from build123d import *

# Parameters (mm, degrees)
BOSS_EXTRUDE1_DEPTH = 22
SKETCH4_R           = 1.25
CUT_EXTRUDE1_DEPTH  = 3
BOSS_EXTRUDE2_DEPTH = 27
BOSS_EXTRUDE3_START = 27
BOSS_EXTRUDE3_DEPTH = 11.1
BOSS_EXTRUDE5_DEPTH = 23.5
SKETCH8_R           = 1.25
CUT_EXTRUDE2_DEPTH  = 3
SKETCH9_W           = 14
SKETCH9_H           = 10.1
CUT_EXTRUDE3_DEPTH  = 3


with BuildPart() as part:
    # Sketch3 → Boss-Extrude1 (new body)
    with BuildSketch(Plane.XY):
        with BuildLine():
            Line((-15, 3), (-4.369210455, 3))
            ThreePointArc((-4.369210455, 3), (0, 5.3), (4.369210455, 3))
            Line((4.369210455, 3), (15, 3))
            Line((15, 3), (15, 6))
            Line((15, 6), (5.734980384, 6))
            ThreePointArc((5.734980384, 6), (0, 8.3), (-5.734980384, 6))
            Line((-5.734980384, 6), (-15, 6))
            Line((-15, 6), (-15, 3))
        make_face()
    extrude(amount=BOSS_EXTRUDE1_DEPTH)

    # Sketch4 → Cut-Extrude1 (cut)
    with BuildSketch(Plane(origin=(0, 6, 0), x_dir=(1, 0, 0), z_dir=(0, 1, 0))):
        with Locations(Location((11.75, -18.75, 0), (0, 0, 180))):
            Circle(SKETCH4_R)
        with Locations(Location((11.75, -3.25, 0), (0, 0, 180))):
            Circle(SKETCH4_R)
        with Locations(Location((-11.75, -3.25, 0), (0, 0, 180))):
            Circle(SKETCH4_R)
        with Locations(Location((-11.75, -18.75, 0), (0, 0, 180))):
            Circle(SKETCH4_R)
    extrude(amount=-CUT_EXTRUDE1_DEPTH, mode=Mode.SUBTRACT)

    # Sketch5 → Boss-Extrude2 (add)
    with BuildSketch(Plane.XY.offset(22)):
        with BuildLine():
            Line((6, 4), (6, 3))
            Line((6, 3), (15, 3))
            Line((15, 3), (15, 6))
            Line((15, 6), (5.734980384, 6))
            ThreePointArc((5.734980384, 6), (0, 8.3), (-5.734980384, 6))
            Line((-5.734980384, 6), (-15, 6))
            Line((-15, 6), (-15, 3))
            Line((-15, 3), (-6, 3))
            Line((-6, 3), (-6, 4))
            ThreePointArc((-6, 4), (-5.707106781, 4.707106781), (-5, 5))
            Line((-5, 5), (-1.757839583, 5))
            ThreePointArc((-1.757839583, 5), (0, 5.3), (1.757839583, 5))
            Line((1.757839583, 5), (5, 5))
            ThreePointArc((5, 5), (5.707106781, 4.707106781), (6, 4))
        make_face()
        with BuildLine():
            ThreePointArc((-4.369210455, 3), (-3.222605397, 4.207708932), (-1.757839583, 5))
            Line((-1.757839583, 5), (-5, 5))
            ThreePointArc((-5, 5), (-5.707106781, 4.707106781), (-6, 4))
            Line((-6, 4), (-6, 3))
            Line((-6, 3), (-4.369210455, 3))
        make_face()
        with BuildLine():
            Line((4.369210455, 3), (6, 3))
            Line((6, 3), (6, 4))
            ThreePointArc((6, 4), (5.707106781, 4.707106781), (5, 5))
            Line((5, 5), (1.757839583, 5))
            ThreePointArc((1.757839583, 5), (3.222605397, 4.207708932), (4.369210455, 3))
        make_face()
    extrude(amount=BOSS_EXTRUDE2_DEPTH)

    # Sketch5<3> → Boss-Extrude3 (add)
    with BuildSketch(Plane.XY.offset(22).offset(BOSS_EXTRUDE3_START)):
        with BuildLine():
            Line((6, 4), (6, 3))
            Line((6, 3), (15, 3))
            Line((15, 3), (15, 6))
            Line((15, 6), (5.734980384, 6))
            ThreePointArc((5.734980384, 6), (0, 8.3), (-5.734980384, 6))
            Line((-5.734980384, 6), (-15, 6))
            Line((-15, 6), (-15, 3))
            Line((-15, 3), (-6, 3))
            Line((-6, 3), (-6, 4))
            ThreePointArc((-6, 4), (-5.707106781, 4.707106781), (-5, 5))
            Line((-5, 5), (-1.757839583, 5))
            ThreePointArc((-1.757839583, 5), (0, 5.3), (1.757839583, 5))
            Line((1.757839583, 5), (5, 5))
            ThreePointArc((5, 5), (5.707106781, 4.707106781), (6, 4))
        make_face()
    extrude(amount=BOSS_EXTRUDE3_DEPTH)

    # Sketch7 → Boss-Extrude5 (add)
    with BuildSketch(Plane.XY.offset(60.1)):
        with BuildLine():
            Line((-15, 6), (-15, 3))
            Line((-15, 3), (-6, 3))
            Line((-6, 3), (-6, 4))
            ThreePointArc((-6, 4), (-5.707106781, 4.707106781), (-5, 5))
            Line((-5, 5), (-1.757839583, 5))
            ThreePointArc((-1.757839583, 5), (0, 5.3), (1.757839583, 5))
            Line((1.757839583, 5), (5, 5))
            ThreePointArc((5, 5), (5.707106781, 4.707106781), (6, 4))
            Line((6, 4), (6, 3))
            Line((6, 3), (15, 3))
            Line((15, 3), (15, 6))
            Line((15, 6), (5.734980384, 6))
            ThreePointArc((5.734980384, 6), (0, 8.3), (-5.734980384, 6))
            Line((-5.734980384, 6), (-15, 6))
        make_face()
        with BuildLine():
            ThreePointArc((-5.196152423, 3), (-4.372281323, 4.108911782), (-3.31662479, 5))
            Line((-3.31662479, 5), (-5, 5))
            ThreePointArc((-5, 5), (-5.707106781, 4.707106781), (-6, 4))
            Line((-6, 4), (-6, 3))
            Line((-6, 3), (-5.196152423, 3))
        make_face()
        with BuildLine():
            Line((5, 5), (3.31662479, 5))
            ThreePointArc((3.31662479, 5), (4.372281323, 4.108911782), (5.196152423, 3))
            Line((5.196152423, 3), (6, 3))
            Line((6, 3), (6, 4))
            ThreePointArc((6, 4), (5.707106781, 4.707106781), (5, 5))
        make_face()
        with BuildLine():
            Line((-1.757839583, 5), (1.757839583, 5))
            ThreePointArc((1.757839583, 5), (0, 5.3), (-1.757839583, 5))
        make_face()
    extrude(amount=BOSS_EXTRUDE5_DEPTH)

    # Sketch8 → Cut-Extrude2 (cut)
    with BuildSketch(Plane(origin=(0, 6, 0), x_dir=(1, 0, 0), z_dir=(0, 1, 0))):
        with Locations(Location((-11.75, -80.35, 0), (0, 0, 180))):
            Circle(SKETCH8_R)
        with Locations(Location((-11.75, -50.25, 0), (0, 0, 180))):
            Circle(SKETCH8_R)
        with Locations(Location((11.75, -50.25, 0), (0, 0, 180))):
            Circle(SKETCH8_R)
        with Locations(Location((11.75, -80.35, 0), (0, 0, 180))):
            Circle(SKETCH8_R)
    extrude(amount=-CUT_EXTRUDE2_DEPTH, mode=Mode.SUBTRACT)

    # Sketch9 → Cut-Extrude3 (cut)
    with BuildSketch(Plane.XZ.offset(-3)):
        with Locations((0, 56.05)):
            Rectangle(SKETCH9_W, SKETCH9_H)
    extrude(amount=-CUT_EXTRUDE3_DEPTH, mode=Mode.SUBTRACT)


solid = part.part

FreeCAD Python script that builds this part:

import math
import FreeCAD as App
import Part
import Sketcher

V = App.Vector

doc = App.newDocument("Part")
body = doc.addObject("PartDesign::Body", "Body")

sketch1 = body.newObject("Sketcher::SketchObject", "Sketch")
sketch1.AttachmentSupport = (doc.getObject("XY_Plane"), [""])
sketch1.MapMode = "FlatFace"
sketch1.addGeometry([
    Part.LineSegment(V(-15, 3, 0), V(-4.4, 3, 0)),
    Part.ArcOfCircle(Part.Circle(V(0, 0, 0), V(0, 0, 1), 5.3), math.radians(34), math.radians(146)),
    Part.LineSegment(V(4.4, 3, 0), V(15, 3, 0)),
    Part.LineSegment(V(15, 3, 0), V(15, 6, 0)),
    Part.LineSegment(V(15, 6, 0), V(5.7, 6, 0)),
    Part.ArcOfCircle(Part.Circle(V(0, 0, 0), V(0, 0, 1), 8.3), math.radians(46), math.radians(134)),
    Part.LineSegment(V(-5.7, 6, 0), V(-15, 6, 0)),
    Part.LineSegment(V(-15, 6, 0), V(-15, 3, 0)),
], False)
sketch1.addConstraint([
    Sketcher.Constraint("Coincident", 0, 2, 1, 2),
    Sketcher.Constraint("Coincident", 1, 1, 2, 1),
    Sketcher.Constraint("Coincident", 2, 2, 3, 1),
    Sketcher.Constraint("Coincident", 3, 2, 4, 1),
    Sketcher.Constraint("Coincident", 4, 2, 5, 1),
    Sketcher.Constraint("Coincident", 5, 2, 6, 1),
    Sketcher.Constraint("Coincident", 6, 2, 7, 1),
    Sketcher.Constraint("Coincident", 7, 2, 0, 1),
    Sketcher.Constraint("Horizontal", 0),
    Sketcher.Constraint("Horizontal", 2),
    Sketcher.Constraint("Vertical", 3),
    Sketcher.Constraint("Horizontal", 4),
    Sketcher.Constraint("Horizontal", 6),
    Sketcher.Constraint("Vertical", 7),
    Sketcher.Constraint("Coincident", 1, 3, -1, 1),
    Sketcher.Constraint("Coincident", 5, 3, -1, 1),
    Sketcher.Constraint("Symmetric", 3, 2, 6, 2, -2),
    Sketcher.Constraint("Horizontal", 0, 2, 1, 1),
    Sketcher.Constraint("Radius", 1, 5.3),
    Sketcher.Constraint("Radius", 5, 8.3),
    Sketcher.Constraint("DistanceY", 3, 1, 3, 2, 3.0),
    Sketcher.Constraint("DistanceY", -1, 1, 0, 2, 3.0),
    Sketcher.Constraint("DistanceX", -1, 1, 2, 2, 15.0),
])
pad1 = body.newObject("PartDesign::Pad", "Pad")
pad1.Profile = sketch1
pad1.Length = 22

sketch2 = body.newObject("Sketcher::SketchObject", "Sketch001")
sketch2.AttachmentSupport = (doc.getObject("XZ_Plane"), [""])
sketch2.MapMode = "FlatFace"
sketch2.AttachmentOffset = App.Placement(V(0, 0, -6), App.Rotation())
sketch2.addGeometry([
    Part.Circle(V(11.8, 18.8, 0), V(0, 0, 1), 1.2),
    Part.Circle(V(11.8, 3.2, 0), V(0, 0, 1), 1.2),
    Part.Circle(V(-11.8, 3.2, 0), V(0, 0, 1), 1.2),
    Part.Circle(V(-11.8, 18.8, 0), V(0, 0, 1), 1.2),
], False)
sketch2.addConstraint([
    Sketcher.Constraint("Equal", 0, 1),
    Sketcher.Constraint("Equal", 1, 2),
    Sketcher.Constraint("Equal", 2, 3),
    Sketcher.Constraint("Symmetric", 1, 3, 2, 3, -2),
    Sketcher.Constraint("Symmetric", 0, 3, 3, 3, -2),
    Sketcher.Constraint("Vertical", 0, 3, 1, 3),
    Sketcher.Constraint("Diameter", 0, 2.5),
    Sketcher.Constraint("DistanceY", 1, 3, 0, 3, 15.5),
    Sketcher.Constraint("DistanceX", 2, 3, 1, 3, 23.5),
    Sketcher.Constraint("DistanceY", -1, 1, 0, 3, 18.75),
])
pocket1 = body.newObject("PartDesign::Pocket", "Pocket")
pocket1.Profile = sketch2
pocket1.Length = 3
pocket1.Reversed = True

sketch3 = body.newObject("Sketcher::SketchObject", "Sketch002")
sketch3.AttachmentSupport = (doc.getObject("XY_Plane"), [""])
sketch3.MapMode = "FlatFace"
sketch3.AttachmentOffset = App.Placement(V(0, 0, 22), App.Rotation())
sketch3.addGeometry([
    Part.LineSegment(V(15, 3, 0), V(15, 6, 0)),
    Part.LineSegment(V(15, 6, 0), V(5.7, 6, 0)),
    Part.ArcOfCircle(Part.Circle(V(0, 0, 0), V(0, 0, 1), 8.3), math.radians(46), math.radians(134)),
    Part.LineSegment(V(-5.7, 6, 0), V(-15, 6, 0)),
    Part.LineSegment(V(-15, 6, 0), V(-15, 3, 0)),
    Part.LineSegment(V(-15, 3, 0), V(-4.4, 3, 0)),
    Part.ArcOfCircle(Part.Circle(V(0, 0, 0), V(0, 0, 1), 5.3), math.radians(109), math.radians(146)),
    Part.ArcOfCircle(Part.Circle(V(0, 0, 0), V(0, 0, 1), 5.3), math.radians(71), math.radians(109)),
    Part.ArcOfCircle(Part.Circle(V(0, 0, 0), V(0, 0, 1), 5.3), math.radians(34), math.radians(71)),
    Part.LineSegment(V(4.4, 3, 0), V(15, 3, 0)),
], False)
sketch3.addConstraint([
    Sketcher.Constraint("Coincident", 0, 2, 1, 1),
    Sketcher.Constraint("Coincident", 1, 2, 2, 1),
    Sketcher.Constraint("Coincident", 2, 2, 3, 1),
    Sketcher.Constraint("Coincident", 3, 2, 4, 1),
    Sketcher.Constraint("Coincident", 4, 2, 5, 1),
    Sketcher.Constraint("Coincident", 5, 2, 6, 2),
    Sketcher.Constraint("Tangent", 6, 1, 7, 2),
    Sketcher.Constraint("Tangent", 7, 1, 8, 2),
    Sketcher.Constraint("Coincident", 8, 1, 9, 1),
    Sketcher.Constraint("Coincident", 9, 2, 0, 1),
    Sketcher.Constraint("Vertical", 0),
    Sketcher.Constraint("Horizontal", 1),
    Sketcher.Constraint("Horizontal", 3),
    Sketcher.Constraint("Vertical", 4),
    Sketcher.Constraint("Horizontal", 5),
    Sketcher.Constraint("Horizontal", 9),
    Sketcher.Constraint("Coincident", 2, 3, -1, 1),
    Sketcher.Constraint("Coincident", 6, 3, -1, 1),
    Sketcher.Constraint("Coincident", 8, 3, -1, 1),
    Sketcher.Constraint("Symmetric", 0, 2, 3, 2, -2),
    Sketcher.Constraint("Horizontal", 6, 1, 7, 1),
    Sketcher.Constraint("Horizontal", 5, 2, 8, 1),
    Sketcher.Constraint("Radius", 2, 8.3),
    Sketcher.Constraint("Radius", 6, 5.3),
    Sketcher.Constraint("DistanceY", 0, 1, 0, 2, 3.0),
    Sketcher.Constraint("DistanceX", -1, 1, 0, 2, 15.0),
    Sketcher.Constraint("DistanceY", -1, 1, 0, 2, 6.0),
    Sketcher.Constraint("DistanceY", -1, 1, 6, 1, 5.0),
])
pad2 = body.newObject("PartDesign::Pad", "Pad001")
pad2.Profile = sketch3
pad2.Length = 27

sketch4 = body.newObject("Sketcher::SketchObject", "Sketch003")
sketch4.AttachmentSupport = (doc.getObject("XY_Plane"), [""])
sketch4.MapMode = "FlatFace"
sketch4.AttachmentOffset = App.Placement(V(0, 0, 49), App.Rotation())
sketch4.addGeometry([
    Part.LineSegment(V(6, 4, 0), V(6, 3, 0)),
    Part.LineSegment(V(6, 3, 0), V(15, 3, 0)),
    Part.LineSegment(V(15, 3, 0), V(15, 6, 0)),
    Part.LineSegment(V(15, 6, 0), V(5.7, 6, 0)),
    Part.ArcOfCircle(Part.Circle(V(0, 0, 0), V(0, 0, 1), 8.3), math.radians(46), math.radians(134)),
    Part.LineSegment(V(-5.7, 6, 0), V(-15, 6, 0)),
    Part.LineSegment(V(-15, 6, 0), V(-15, 3, 0)),
    Part.LineSegment(V(-15, 3, 0), V(-6, 3, 0)),
    Part.LineSegment(V(-6, 3, 0), V(-6, 4, 0)),
    Part.ArcOfCircle(Part.Circle(V(-5, 4, 0), V(0, 0, 1), 1), math.radians(90), math.radians(180)),
    Part.LineSegment(V(-5, 5, 0), V(-1.8, 5, 0)),
    Part.ArcOfCircle(Part.Circle(V(0, 0, 0), V(0, 0, 1), 5.3), math.radians(71), math.radians(109)),
    Part.LineSegment(V(1.8, 5, 0), V(5, 5, 0)),
    Part.ArcOfCircle(Part.Circle(V(5, 4, 0), V(0, 0, 1), 1), math.radians(0), math.radians(90)),
], False)
sketch4.addConstraint([
    Sketcher.Constraint("Coincident", 0, 2, 1, 1),
    Sketcher.Constraint("Coincident", 1, 2, 2, 1),
    Sketcher.Constraint("Coincident", 2, 2, 3, 1),
    Sketcher.Constraint("Coincident", 3, 2, 4, 1),
    Sketcher.Constraint("Coincident", 4, 2, 5, 1),
    Sketcher.Constraint("Coincident", 5, 2, 6, 1),
    Sketcher.Constraint("Coincident", 6, 2, 7, 1),
    Sketcher.Constraint("Coincident", 7, 2, 8, 1),
    Sketcher.Constraint("Tangent", 8, 2, 9, 2),
    Sketcher.Constraint("Tangent", 9, 1, 10, 1),
    Sketcher.Constraint("Coincident", 10, 2, 11, 2),
    Sketcher.Constraint("Coincident", 11, 1, 12, 1),
    Sketcher.Constraint("Tangent", 12, 2, 13, 2),
    Sketcher.Constraint("Tangent", 13, 1, 0, 1),
    Sketcher.Constraint("Vertical", 0),
    Sketcher.Constraint("Horizontal", 1),
    Sketcher.Constraint("Vertical", 2),
    Sketcher.Constraint("Horizontal", 3),
    Sketcher.Constraint("Horizontal", 5),
    Sketcher.Constraint("Vertical", 6),
    Sketcher.Constraint("Horizontal", 7),
    Sketcher.Constraint("Vertical", 8),
    Sketcher.Constraint("Horizontal", 10),
    Sketcher.Constraint("Horizontal", 12),
    Sketcher.Constraint("Coincident", 4, 3, -1, 1),
    Sketcher.Constraint("Coincident", 11, 3, -1, 1),
    Sketcher.Constraint("Equal", 9, 13),
    Sketcher.Constraint("Symmetric", 9, 3, 13, 3, -2),
    Sketcher.Constraint("Symmetric", 2, 2, 5, 2, -2),
    Sketcher.Constraint("Horizontal", 1, 2, 6, 2),
    Sketcher.Constraint("Radius", 9, 1.0),
    Sketcher.Constraint("Radius", 4, 8.3),
    Sketcher.Constraint("Radius", 11, 5.3),
    Sketcher.Constraint("DistanceX", 1, 1, 1, 2, 9.0),
    Sketcher.Constraint("DistanceY", 0, 2, 0, 1, 1.0),
    Sketcher.Constraint("DistanceY", 2, 1, 2, 2, 3.0),
    Sketcher.Constraint("DistanceX", 9, 3, -1, 1, 5.0),
    Sketcher.Constraint("DistanceY", -1, 1, 9, 3, 4.0),
])
pad3 = body.newObject("PartDesign::Pad", "Pad002")
pad3.Profile = sketch4
pad3.Length = 11.1

sketch5 = body.newObject("Sketcher::SketchObject", "Sketch004")
sketch5.AttachmentSupport = (doc.getObject("XY_Plane"), [""])
sketch5.MapMode = "FlatFace"
sketch5.AttachmentOffset = App.Placement(V(0, 0, 60.1), App.Rotation())
sketch5.addGeometry([
    Part.LineSegment(V(-15, 6, 0), V(-15, 3, 0)),
    Part.LineSegment(V(-15, 3, 0), V(-5.2, 3, 0)),
    Part.ArcOfCircle(Part.Circle(V(0, 0, 0), V(0, 0, 1), 6), math.radians(124), math.radians(150)),
    Part.LineSegment(V(-3.3, 5, 0), V(3.3, 5, 0)),
    Part.ArcOfCircle(Part.Circle(V(0, 0, 0), V(0, 0, 1), 6), math.radians(30), math.radians(56)),
    Part.LineSegment(V(5.2, 3, 0), V(15, 3, 0)),
    Part.LineSegment(V(15, 3, 0), V(15, 6, 0)),
    Part.LineSegment(V(15, 6, 0), V(5.7, 6, 0)),
    Part.ArcOfCircle(Part.Circle(V(0, 0, 0), V(0, 0, 1), 8.3), math.radians(46), math.radians(134)),
    Part.LineSegment(V(-5.7, 6, 0), V(-15, 6, 0)),
], False)
sketch5.addConstraint([
    Sketcher.Constraint("Coincident", 0, 2, 1, 1),
    Sketcher.Constraint("Coincident", 1, 2, 2, 2),
    Sketcher.Constraint("Coincident", 2, 1, 3, 1),
    Sketcher.Constraint("Coincident", 3, 2, 4, 2),
    Sketcher.Constraint("Coincident", 4, 1, 5, 1),
    Sketcher.Constraint("Coincident", 5, 2, 6, 1),
    Sketcher.Constraint("Coincident", 6, 2, 7, 1),
    Sketcher.Constraint("Coincident", 7, 2, 8, 1),
    Sketcher.Constraint("Coincident", 8, 2, 9, 1),
    Sketcher.Constraint("Coincident", 9, 2, 0, 1),
    Sketcher.Constraint("Vertical", 0),
    Sketcher.Constraint("Horizontal", 1),
    Sketcher.Constraint("Horizontal", 3),
    Sketcher.Constraint("Horizontal", 5),
    Sketcher.Constraint("Vertical", 6),
    Sketcher.Constraint("Horizontal", 7),
    Sketcher.Constraint("Horizontal", 9),
    Sketcher.Constraint("Coincident", 2, 3, -1, 1),
    Sketcher.Constraint("Coincident", 4, 3, -1, 1),
    Sketcher.Constraint("Coincident", 8, 3, -1, 1),
    Sketcher.Constraint("Equal", 2, 4),
    Sketcher.Constraint("Symmetric", 0, 2, 5, 2, -2),
    Sketcher.Constraint("Horizontal", 7, 2, 8, 2),
    Sketcher.Constraint("Radius", 2, 6.0),
    Sketcher.Constraint("Radius", 8, 8.3),
    Sketcher.Constraint("DistanceY", 0, 2, 0, 1, 3.0),
    Sketcher.Constraint("DistanceX", 0, 2, -1, 1, 15.0),
    Sketcher.Constraint("DistanceY", -1, 1, 0, 2, 3.0),
    Sketcher.Constraint("DistanceY", -1, 1, 2, 1, 5.0),
])
pad4 = body.newObject("PartDesign::Pad", "Pad003")
pad4.Profile = sketch5
pad4.Length = 23.5

sketch6 = body.newObject("Sketcher::SketchObject", "Sketch005")
sketch6.AttachmentSupport = (doc.getObject("XZ_Plane"), [""])
sketch6.MapMode = "FlatFace"
sketch6.AttachmentOffset = App.Placement(V(0, 0, -6), App.Rotation())
sketch6.addGeometry([
    Part.Circle(V(-11.8, 80.3, 0), V(0, 0, 1), 1.2),
    Part.Circle(V(-11.8, 50.2, 0), V(0, 0, 1), 1.2),
    Part.Circle(V(11.8, 50.2, 0), V(0, 0, 1), 1.2),
    Part.Circle(V(11.8, 80.3, 0), V(0, 0, 1), 1.2),
], False)
sketch6.addConstraint([
    Sketcher.Constraint("Equal", 0, 1),
    Sketcher.Constraint("Equal", 1, 2),
    Sketcher.Constraint("Equal", 2, 3),
    Sketcher.Constraint("Symmetric", 1, 3, 2, 3, -2),
    Sketcher.Constraint("Symmetric", 0, 3, 3, 3, -2),
    Sketcher.Constraint("Vertical", 0, 3, 1, 3),
    Sketcher.Constraint("Diameter", 0, 2.5),
    Sketcher.Constraint("DistanceY", 1, 3, 0, 3, 30.1),
    Sketcher.Constraint("DistanceX", 1, 3, 2, 3, 23.5),
    Sketcher.Constraint("DistanceY", -1, 1, 0, 3, 80.35),
])
pocket2 = body.newObject("PartDesign::Pocket", "Pocket001")
pocket2.Profile = sketch6
pocket2.Length = 3
pocket2.Reversed = True

sketch7 = body.newObject("Sketcher::SketchObject", "Sketch006")
sketch7.AttachmentSupport = (doc.getObject("XZ_Plane"), [""])
sketch7.MapMode = "FlatFace"
sketch7.AttachmentOffset = App.Placement(V(0, 0, -3), App.Rotation())
sketch7.addGeometry([
    Part.LineSegment(V(-7, 61, 0), V(-7, 51, 0)),
    Part.LineSegment(V(-7, 51, 0), V(7, 51, 0)),
    Part.LineSegment(V(7, 51, 0), V(7, 61, 0)),
    Part.LineSegment(V(7, 61, 0), V(-7, 61, 0)),
], False)
sketch7.addConstraint([
    Sketcher.Constraint("Coincident", 0, 2, 1, 1),
    Sketcher.Constraint("Coincident", 1, 2, 2, 1),
    Sketcher.Constraint("Coincident", 2, 2, 3, 1),
    Sketcher.Constraint("Coincident", 3, 2, 0, 1),
    Sketcher.Constraint("Vertical", 0),
    Sketcher.Constraint("Horizontal", 1),
    Sketcher.Constraint("Vertical", 2),
    Sketcher.Constraint("Horizontal", 3),
    Sketcher.Constraint("DistanceX", 1, 1, 1, 2, 14.0),
    Sketcher.Constraint("DistanceY", 0, 2, 0, 1, 10.1),
    Sketcher.Constraint("DistanceX", 0, 2, -1, 1, 7.0),
    Sketcher.Constraint("DistanceY", -1, 1, 0, 2, 51.0),
])
pocket3 = body.newObject("PartDesign::Pocket", "Pocket002")
pocket3.Profile = sketch7
pocket3.Length = 3

doc.recompute()
